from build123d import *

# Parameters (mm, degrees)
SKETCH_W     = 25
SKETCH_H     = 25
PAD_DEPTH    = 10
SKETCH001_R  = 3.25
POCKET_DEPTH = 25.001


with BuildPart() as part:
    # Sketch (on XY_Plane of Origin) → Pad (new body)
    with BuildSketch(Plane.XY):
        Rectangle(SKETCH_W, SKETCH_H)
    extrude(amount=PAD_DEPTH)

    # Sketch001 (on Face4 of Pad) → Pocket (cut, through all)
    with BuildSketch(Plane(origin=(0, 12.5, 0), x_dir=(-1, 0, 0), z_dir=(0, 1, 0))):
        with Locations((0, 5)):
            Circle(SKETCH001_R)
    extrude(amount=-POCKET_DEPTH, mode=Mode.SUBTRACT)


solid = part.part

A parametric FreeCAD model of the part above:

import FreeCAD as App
import Part
import Sketcher


def add_polygon(sketch, points):
    """Adds a closed chain of lines whose ends are joined by coincident constraints."""
    first, n = sketch.GeometryCount, len(points)
    for a, b in zip(points, points[1:] + points[:1]):
        sketch.addGeometry(Part.LineSegment(App.Vector(*a, 0), App.Vector(*b, 0)), False)
    for i in range(n):
        sketch.addConstraint(Sketcher.Constraint("Coincident", first + i, 2, first + (i + 1) % n, 1))

doc = App.newDocument("Part")
body = doc.addObject("PartDesign::Body", "Body")

sketch1 = doc.addObject("Sketcher::SketchObject", "Sketch")
body.addObject(sketch1)
sketch1.AttachmentSupport = (doc.XY_Plane, [""])
sketch1.MapMode = "FlatFace"
add_polygon(sketch1, [(-12, 12), (-12, -12), (12, -12), (12, 12)])
sketch1.addConstraint([
    Sketcher.Constraint("Vertical", 0),
    Sketcher.Constraint("Horizontal", 1),
    Sketcher.Constraint("Vertical", 2),
    Sketcher.Constraint("Horizontal", 3),
    Sketcher.Constraint("Symmetric", 0, 2, 2, 2, -1, 1),
    Sketcher.Constraint("Equal", 3, 0),
    Sketcher.Constraint("DistanceX", 1, 1, 1, 2, 25.0),
])
pad1 = doc.addObject("PartDesign::Pad", "Pad")
body.addObject(pad1)
pad1.Profile = sketch1
pad1.Length = 10

sketch2 = doc.addObject("Sketcher::SketchObject", "Sketch001")
body.addObject(sketch2)
sketch2.AttachmentSupport = (doc.XZ_Plane, [""])
sketch2.MapMode = "FlatFace"
sketch2.AttachmentOffset = App.Placement(App.Vector(0, 0, -12.5), App.Rotation())
sketch2.addGeometry(Part.Circle(App.Vector(0, 5, 0), App.Vector(0, 0, 1), 3.2), False)
sketch2.addConstraint([
    Sketcher.Constraint("PointOnObject", 0, 3, -2),
    Sketcher.Constraint("Diameter", 0, 6.5),
    Sketcher.Constraint("DistanceY", -1, 1, 0, 3, 5.0),
])
pocket1 = doc.addObject("PartDesign::Pocket", "Pocket")
body.addObject(pocket1)
pocket1.Profile = sketch2
pocket1.Type = "ThroughAll"
pocket1.Reversed = True

doc.recompute()
